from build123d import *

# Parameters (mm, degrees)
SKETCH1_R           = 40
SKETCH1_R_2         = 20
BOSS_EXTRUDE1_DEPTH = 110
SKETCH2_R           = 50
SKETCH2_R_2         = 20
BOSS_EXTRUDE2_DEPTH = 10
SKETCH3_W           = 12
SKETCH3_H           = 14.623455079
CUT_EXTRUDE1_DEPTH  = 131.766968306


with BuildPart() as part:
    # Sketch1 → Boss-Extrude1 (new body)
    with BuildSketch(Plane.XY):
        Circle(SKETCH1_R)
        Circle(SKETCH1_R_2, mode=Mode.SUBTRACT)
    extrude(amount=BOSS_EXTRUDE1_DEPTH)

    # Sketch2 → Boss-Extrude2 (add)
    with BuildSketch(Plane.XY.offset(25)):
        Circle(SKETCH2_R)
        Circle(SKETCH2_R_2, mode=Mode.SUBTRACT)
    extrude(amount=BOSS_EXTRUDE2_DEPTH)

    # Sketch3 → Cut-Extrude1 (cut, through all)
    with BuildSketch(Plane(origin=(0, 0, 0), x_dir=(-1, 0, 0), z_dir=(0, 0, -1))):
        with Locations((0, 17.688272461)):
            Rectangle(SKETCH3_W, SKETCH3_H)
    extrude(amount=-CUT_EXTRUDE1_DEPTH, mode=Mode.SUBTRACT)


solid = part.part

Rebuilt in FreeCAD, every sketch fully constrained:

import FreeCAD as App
import Part
import Sketcher

doc = App.newDocument("Part")
body = doc.addObject("PartDesign::Body", "Body")

# Sketch on XY plane
sketch1 = body.newObject("Sketcher::SketchObject", "Sketch")
sketch1.AttachmentSupport = (doc.getObject("XY_Plane"), [""])
sketch1.MapMode = "FlatFace"
sketch1.addGeometry(Part.Circle(App.Vector(0, 0, 0), App.Vector(0, 0, 1), 40), False)
sketch1.addGeometry(Part.Circle(App.Vector(0, 0, 0), App.Vector(0, 0, 1), 20), False)
sketch1.addConstraint(Sketcher.Constraint("Coincident", 0, 3, -1, 1))
sketch1.addConstraint(Sketcher.Constraint("Coincident", 1, 3, -1, 1))
sketch1.addConstraint(Sketcher.Constraint("Diameter", 0, 80.0))
sketch1.addConstraint(Sketcher.Constraint("Diameter", 1, 40.0))
pad1 = body.newObject("PartDesign::Pad", "Pad")
pad1.Profile = sketch1
pad1.Length = 110

# Sketch on XY plane
sketch2 = body.newObject("Sketcher::SketchObject", "Sketch001")
sketch2.AttachmentSupport = (doc.getObject("XY_Plane"), [""])
sketch2.MapMode = "FlatFace"
sketch2.AttachmentOffset = App.Placement(App.Vector(0, 0, 25), App.Rotation())
sketch2.addGeometry(Part.Circle(App.Vector(0, 0, 0), App.Vector(0, 0, 1), 50), False)
sketch2.addGeometry(Part.Circle(App.Vector(0, 0, 0), App.Vector(0, 0, 1), 20), False)
sketch2.addConstraint(Sketcher.Constraint("Coincident", 0, 3, -1, 1))
sketch2.addConstraint(Sketcher.Constraint("Coincident", 1, 3, -1, 1))
sketch2.addConstraint(Sketcher.Constraint("Diameter", 0, 100.0))
sketch2.addConstraint(Sketcher.Constraint("Diameter", 1, 40.0))
pad2 = body.newObject("PartDesign::Pad", "Pad001")
pad2.Profile = sketch2
pad2.Length = 10

# Sketch on XY plane
sketch3 = body.newObject("Sketcher::SketchObject", "Sketch002")
sketch3.AttachmentSupport = (doc.getObject("XY_Plane"), [""])
sketch3.MapMode = "FlatFace"
sketch3.addGeometry(Part.LineSegment(App.Vector(6, 25, 0), App.Vector(6, 10, 0)), False)
sketch3.addGeometry(Part.LineSegment(App.Vector(6, 10, 0), App.Vector(-6, 10, 0)), False)
sketch3.addGeometry(Part.LineSegment(App.Vector(-6, 10, 0), App.Vector(-6, 25, 0)), False)
sketch3.addGeometry(Part.LineSegment(App.Vector(-6, 25, 0), App.Vector(6, 25, 0)), False)
sketch3.addConstraint(Sketcher.Constraint("Coincident", 0, 2, 1, 1))
sketch3.addConstraint(Sketcher.Constraint("Coincident", 1, 2, 2, 1))
sketch3.addConstraint(Sketcher.Constraint("Coincident", 2, 2, 3, 1))
sketch3.addConstraint(Sketcher.Constraint("Coincident", 3, 2, 0, 1))
sketch3.addConstraint(Sketcher.Constraint("Vertical", 0))
sketch3.addConstraint(Sketcher.Constraint("Horizontal", 1))
sketch3.addConstraint(Sketcher.Constraint("Vertical", 2))
sketch3.addConstraint(Sketcher.Constraint("Horizontal", 3))
sketch3.addConstraint(Sketcher.Constraint("DistanceX", 1, 2, 1, 1, 12.0))
sketch3.addConstraint(Sketcher.Constraint("DistanceX", -1, 1, 0, 2, 6.0))
sketch3.addConstraint(Sketcher.Constraint("DistanceY", -1, 1, 2, 2, 25.0))
sketch3.addConstraint(Sketcher.Constraint("DistanceY", 0, 2, 0, 1, 14.623455))
pocket1 = body.newObject("PartDesign::Pocket", "Pocket")
pocket1.Profile = sketch3
pocket1.Type = "ThroughAll"
pocket1.Reversed = True

doc.recompute()
